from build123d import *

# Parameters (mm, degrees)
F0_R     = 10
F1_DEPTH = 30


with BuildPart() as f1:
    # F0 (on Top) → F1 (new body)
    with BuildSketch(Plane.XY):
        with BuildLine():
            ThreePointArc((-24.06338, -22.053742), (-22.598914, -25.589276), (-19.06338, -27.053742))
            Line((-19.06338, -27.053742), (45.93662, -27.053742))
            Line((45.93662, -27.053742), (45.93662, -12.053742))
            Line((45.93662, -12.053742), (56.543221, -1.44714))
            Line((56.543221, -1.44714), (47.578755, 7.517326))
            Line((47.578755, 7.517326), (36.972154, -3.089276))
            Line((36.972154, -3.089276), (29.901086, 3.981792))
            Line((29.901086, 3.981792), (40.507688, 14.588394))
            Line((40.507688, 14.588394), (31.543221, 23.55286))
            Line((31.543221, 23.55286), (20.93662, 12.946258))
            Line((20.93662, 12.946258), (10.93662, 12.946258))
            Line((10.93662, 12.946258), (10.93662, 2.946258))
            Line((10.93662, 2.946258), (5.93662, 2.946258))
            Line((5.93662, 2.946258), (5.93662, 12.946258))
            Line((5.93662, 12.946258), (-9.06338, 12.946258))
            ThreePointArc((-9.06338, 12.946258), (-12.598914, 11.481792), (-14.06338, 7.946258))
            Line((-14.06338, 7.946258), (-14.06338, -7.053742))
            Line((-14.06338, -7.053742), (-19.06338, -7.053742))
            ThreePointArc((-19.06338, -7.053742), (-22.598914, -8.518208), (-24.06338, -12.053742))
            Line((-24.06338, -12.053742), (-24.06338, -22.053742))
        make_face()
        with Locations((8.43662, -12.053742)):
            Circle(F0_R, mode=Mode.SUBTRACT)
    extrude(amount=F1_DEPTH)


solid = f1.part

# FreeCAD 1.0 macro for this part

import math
import FreeCAD as App
import Part
import Sketcher

V = App.Vector

doc = App.newDocument("Part")
body = doc.addObject("PartDesign::Body", "Body")

sketch1 = doc.addObject("Sketcher::SketchObject", "Sketch")
body.addObject(sketch1)
sketch1.AttachmentSupport = (doc.XY_Plane, [""])
sketch1.MapMode = "FlatFace"
sketch1.addGeometry(Part.ArcOfCircle(Part.Circle(V(-19.1, -22.1, 0), V(0, 0, 1), 5), math.radians(180), math.radians(270)), False)
sketch1.addGeometry(Part.LineSegment(V(-19.1, -27.1, 0), V(45.9, -27.1, 0)), False)
sketch1.addGeometry(Part.LineSegment(V(45.9, -27.1, 0), V(45.9, -12.1, 0)), False)
sketch1.addGeometry(Part.LineSegment(V(45.9, -12.1, 0), V(56.5, -1.4, 0)), False)
sketch1.addGeometry(Part.LineSegment(V(56.5, -1.4, 0), V(47.6, 7.5, 0)), False)
sketch1.addGeometry(Part.LineSegment(V(47.6, 7.5, 0), V(37, -3.1, 0)), False)
sketch1.addGeometry(Part.LineSegment(V(37, -3.1, 0), V(29.9, 4, 0)), False)
sketch1.addGeometry(Part.LineSegment(V(29.9, 4, 0), V(40.5, 14.6, 0)), False)
sketch1.addGeometry(Part.LineSegment(V(40.5, 14.6, 0), V(31.5, 23.6, 0)), False)
sketch1.addGeometry(Part.LineSegment(V(31.5, 23.6, 0), V(20.9, 12.9, 0)), False)
sketch1.addGeometry(Part.LineSegment(V(20.9, 12.9, 0), V(10.9, 12.9, 0)), False)
sketch1.addGeometry(Part.LineSegment(V(10.9, 12.9, 0), V(10.9, 2.9, 0)), False)
sketch1.addGeometry(Part.LineSegment(V(10.9, 2.9, 0), V(5.9, 2.9, 0)), False)
sketch1.addGeometry(Part.LineSegment(V(5.9, 2.9, 0), V(5.9, 12.9, 0)), False)
sketch1.addGeometry(Part.LineSegment(V(5.9, 12.9, 0), V(-9.1, 12.9, 0)), False)
sketch1.addGeometry(Part.ArcOfCircle(Part.Circle(V(-9.1, 7.9, 0), V(0, 0, 1), 5), math.radians(90), math.radians(180)), False)
sketch1.addGeometry(Part.LineSegment(V(-14.1, 7.9, 0), V(-14.1, -7.1, 0)), False)
sketch1.addGeometry(Part.LineSegment(V(-14.1, -7.1, 0), V(-19.1, -7.1, 0)), False)
sketch1.addGeometry(Part.ArcOfCircle(Part.Circle(V(-19.1, -12.1, 0), V(0, 0, 1), 5), math.radians(90), math.radians(180)), False)
sketch1.addGeometry(Part.LineSegment(V(-24.1, -12.1, 0), V(-24.1, -22.1, 0)), False)
sketch1.addGeometry(Part.Circle(V(8.4, -12.1, 0), V(0, 0, 1), 10), False)
sketch1.addConstraint(Sketcher.Constraint("Tangent", 0, 2, 1, 1))
sketch1.addConstraint(Sketcher.Constraint("Coincident", 1, 2, 2, 1))
sketch1.addConstraint(Sketcher.Constraint("Coincident", 2, 2, 3, 1))
sketch1.addConstraint(Sketcher.Constraint("Coincident", 3, 2, 4, 1))
sketch1.addConstraint(Sketcher.Constraint("Coincident", 4, 2, 5, 1))
sketch1.addConstraint(Sketcher.Constraint("Coincident", 5, 2, 6, 1))
sketch1.addConstraint(Sketcher.Constraint("Coincident", 6, 2, 7, 1))
sketch1.addConstraint(Sketcher.Constraint("Coincident", 7, 2, 8, 1))
sketch1.addConstraint(Sketcher.Constraint("Coincident", 8, 2, 9, 1))
sketch1.addConstraint(Sketcher.Constraint("Coincident", 9, 2, 10, 1))
sketch1.addConstraint(Sketcher.Constraint("Coincident", 10, 2, 11, 1))
sketch1.addConstraint(Sketcher.Constraint("Coincident", 11, 2, 12, 1))
sketch1.addConstraint(Sketcher.Constraint("Coincident", 12, 2, 13, 1))
sketch1.addConstraint(Sketcher.Constraint("Coincident", 13, 2, 14, 1))
sketch1.addConstraint(Sketcher.Constraint("Tangent", 14, 2, 15, 1))
sketch1.addConstraint(Sketcher.Constraint("Tangent", 15, 2, 16, 1))
sketch1.addConstraint(Sketcher.Constraint("Coincident", 16, 2, 17, 1))
sketch1.addConstraint(Sketcher.Constraint("Tangent", 17, 2, 18, 1))
sketch1.addConstraint(Sketcher.Constraint("Tangent", 18, 2, 19, 1))
sketch1.addConstraint(Sketcher.Constraint("Tangent", 19, 2, 0, 1))
sketch1.addConstraint(Sketcher.Constraint("Horizontal", 1))
sketch1.addConstraint(Sketcher.Constraint("Vertical", 2))
sketch1.addConstraint(Sketcher.Constraint("Horizontal", 10))
sketch1.addConstraint(Sketcher.Constraint("Vertical", 11))
sketch1.addConstraint(Sketcher.Constraint("Horizontal", 12))
sketch1.addConstraint(Sketcher.Constraint("Vertical", 13))
sketch1.addConstraint(Sketcher.Constraint("Horizontal", 14))
sketch1.addConstraint(Sketcher.Constraint("Vertical", 16))
sketch1.addConstraint(Sketcher.Constraint("Horizontal", 17))
sketch1.addConstraint(Sketcher.Constraint("Vertical", 19))
sketch1.addConstraint(Sketcher.Constraint("Equal", 0, 15))
sketch1.addConstraint(Sketcher.Constraint("Equal", 15, 18))
sketch1.addConstraint(Sketcher.Constraint("Perpendicular", 3, 4))
sketch1.addConstraint(Sketcher.Constraint("Perpendicular", 4, 5))
sketch1.addConstraint(Sketcher.Constraint("Perpendicular", 5, 6))
sketch1.addConstraint(Sketcher.Constraint("Perpendicular", 6, 7))
sketch1.addConstraint(Sketcher.Constraint("Perpendicular", 7, 8))
sketch1.addConstraint(Sketcher.Constraint("Perpendicular", 8, 9))
sketch1.addConstraint(Sketcher.Constraint("Horizontal", 18, 3, 20, 3))
sketch1.addConstraint(Sketcher.Constraint("Horizontal", 20, 3, 2, 2))
sketch1.addConstraint(Sketcher.Constraint("Horizontal", 10, 2, 13, 2))
sketch1.addConstraint(Sketcher.Constraint("Equal", 12, 17))
sketch1.addConstraint(Sketcher.Constraint("Equal", 14, 2))
sketch1.addConstraint(Sketcher.Constraint("Equal", 10, 11))
sketch1.addConstraint(Sketcher.Constraint("Equal", 2, 16))
sketch1.addConstraint(Sketcher.Constraint("Equal", 13, 19))
sketch1.addConstraint(Sketcher.Constraint("Equal", 3, 5))
sketch1.addConstraint(Sketcher.Constraint("Equal", 5, 7))
sketch1.addConstraint(Sketcher.Constraint("Equal", 4, 8))
sketch1.addConstraint(Sketcher.Constraint("Equal", 7, 9))
sketch1.addConstraint(Sketcher.Constraint("Diameter", 20, 20.0))
sketch1.addConstraint(Sketcher.Constraint("Radius", 0, 5.0))
sketch1.addConstraint(Sketcher.Constraint("DistanceX", 1, 1, 1, 2, 65.0))
sketch1.addConstraint(Sketcher.Constraint("DistanceX", 10, 2, 10, 1, 10.0))
sketch1.addConstraint(Sketcher.Constraint("DistanceX", 12, 2, 12, 1, 5.0))
sketch1.addConstraint(Sketcher.Constraint("Distance", 3, 15.0))
sketch1.addConstraint(Sketcher.Constraint("Distance", 6, 10.0))
sketch1.addConstraint(Sketcher.Constraint("DistanceX", 15, 3, 20, 3, 17.5))
sketch1.addConstraint(Sketcher.Constraint("DistanceX", 0, 3, -1, 1, 19.06338))
sketch1.addConstraint(Sketcher.Constraint("DistanceY", -1, 1, 15, 3, 7.946258))
pad1 = doc.addObject("PartDesign::Pad", "Pad")
body.addObject(pad1)
pad1.Profile = sketch1
pad1.Length = 30

doc.recompute()
